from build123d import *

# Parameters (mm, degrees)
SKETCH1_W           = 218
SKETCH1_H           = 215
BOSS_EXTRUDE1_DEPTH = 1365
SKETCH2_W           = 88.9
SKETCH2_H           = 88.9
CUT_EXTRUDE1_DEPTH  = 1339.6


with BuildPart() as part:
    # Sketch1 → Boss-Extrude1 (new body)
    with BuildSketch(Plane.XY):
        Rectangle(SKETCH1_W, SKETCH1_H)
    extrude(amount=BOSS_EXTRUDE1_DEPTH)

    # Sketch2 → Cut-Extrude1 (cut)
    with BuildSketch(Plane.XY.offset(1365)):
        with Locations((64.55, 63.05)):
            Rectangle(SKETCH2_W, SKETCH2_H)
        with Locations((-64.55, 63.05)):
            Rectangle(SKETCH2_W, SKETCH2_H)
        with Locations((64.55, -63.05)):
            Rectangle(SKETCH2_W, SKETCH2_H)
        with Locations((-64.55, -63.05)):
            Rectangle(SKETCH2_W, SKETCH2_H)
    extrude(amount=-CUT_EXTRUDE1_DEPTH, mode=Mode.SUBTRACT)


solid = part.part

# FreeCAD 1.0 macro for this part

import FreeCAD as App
import Part
import Sketcher
from FreeCAD import Vector
Q = App.Units.Quantity

doc = App.newDocument("Part")
body = doc.addObject("PartDesign::Body", "Body")

# Sketch on XY plane
sketch1 = body.newObject("Sketcher::SketchObject", "Sketch")
sketch1.AttachmentSupport = (doc.getObject("XY_Plane"), [""])
sketch1.MapMode = "FlatFace"
sketch1.addGeometry([
    Part.LineSegment(Vector(-109, 108, 0), Vector(-109, -108, 0)),
    Part.LineSegment(Vector(-109, -108, 0), Vector(109, -108, 0)),
    Part.LineSegment(Vector(109, -108, 0), Vector(109, 108, 0)),
    Part.LineSegment(Vector(109, 108, 0), Vector(-109, 108, 0)),
], False)
sketch1.addConstraint([
    Sketcher.Constraint("Coincident", 0, 2, 1, 1),
    Sketcher.Constraint("Coincident", 1, 2, 2, 1),
    Sketcher.Constraint("Coincident", 2, 2, 3, 1),
    Sketcher.Constraint("Coincident", 3, 2, 0, 1),
    Sketcher.Constraint("Vertical", 0),
    Sketcher.Constraint("Horizontal", 1),
    Sketcher.Constraint("Vertical", 2),
    Sketcher.Constraint("Horizontal", 3),
    Sketcher.Constraint("Symmetric", 0, 2, 2, 2, -1, 1),
    Sketcher.Constraint("DistanceX", 1, 1, 1, 2, Q("218 mm")),
    Sketcher.Constraint("DistanceY", 0, 2, 0, 1, Q("215 mm")),
])
pad1 = body.newObject("PartDesign::Pad", "Pad")
pad1.Profile = sketch1
pad1.Length = 1365

# Sketch on XY plane
sketch2 = body.newObject("Sketcher::SketchObject", "Sketch001")
sketch2.AttachmentSupport = (doc.getObject("XY_Plane"), [""])
sketch2.MapMode = "FlatFace"
sketch2.AttachmentOffset = App.Placement(Vector(0, 0, 1365), App.Rotation())
sketch2.addGeometry([
    Part.LineSegment(Vector(20, 108, 0), Vector(20, 19, 0)),  # 0
    Part.LineSegment(Vector(20, 19, 0), Vector(109, 19, 0)),  # 1
    Part.LineSegment(Vector(109, 19, 0), Vector(109, 108, 0)),  # 2
    Part.LineSegment(Vector(109, 108, 0), Vector(20, 108, 0)),  # 3
    Part.LineSegment(Vector(-109, 108, 0), Vector(-109, 19, 0)),  # 4
    Part.LineSegment(Vector(-109, 19, 0), Vector(-20, 19, 0)),  # 5
    Part.LineSegment(Vector(-20, 19, 0), Vector(-20, 108, 0)),  # 6
    Part.LineSegment(Vector(-20, 108, 0), Vector(-109, 108, 0)),  # 7
    Part.LineSegment(Vector(20, -19, 0), Vector(20, -108, 0)),  # 8
    Part.LineSegment(Vector(20, -108, 0), Vector(109, -108, 0)),  # 9
    Part.LineSegment(Vector(109, -108, 0), Vector(109, -19, 0)),  # 10
    Part.LineSegment(Vector(109, -19, 0), Vector(20, -19, 0)),  # 11
    Part.LineSegment(Vector(-109, -19, 0), Vector(-109, -108, 0)),  # 12
    Part.LineSegment(Vector(-109, -108, 0), Vector(-20, -108, 0)),  # 13
    Part.LineSegment(Vector(-20, -108, 0), Vector(-20, -19, 0)),  # 14
    Part.LineSegment(Vector(-20, -19, 0), Vector(-109, -19, 0)),  # 15
], False)
sketch2.addConstraint([
    Sketcher.Constraint("Coincident", 0, 2, 1, 1),
    Sketcher.Constraint("Coincident", 1, 2, 2, 1),
    Sketcher.Constraint("Coincident", 2, 2, 3, 1),
    Sketcher.Constraint("Coincident", 3, 2, 0, 1),
    Sketcher.Constraint("Coincident", 4, 2, 5, 1),
    Sketcher.Constraint("Coincident", 5, 2, 6, 1),
    Sketcher.Constraint("Coincident", 6, 2, 7, 1),
    Sketcher.Constraint("Coincident", 7, 2, 4, 1),
    Sketcher.Constraint("Coincident", 8, 2, 9, 1),
    Sketcher.Constraint("Coincident", 9, 2, 10, 1),
    Sketcher.Constraint("Coincident", 10, 2, 11, 1),
    Sketcher.Constraint("Coincident", 11, 2, 8, 1),
    Sketcher.Constraint("Coincident", 12, 2, 13, 1),
    Sketcher.Constraint("Coincident", 13, 2, 14, 1),
    Sketcher.Constraint("Coincident", 14, 2, 15, 1),
    Sketcher.Constraint("Coincident", 15, 2, 12, 1),
    Sketcher.Constraint("Vertical", 0),
    Sketcher.Constraint("Horizontal", 1),
    Sketcher.Constraint("Vertical", 2),
    Sketcher.Constraint("Horizontal", 3),
    Sketcher.Constraint("Vertical", 4),
    Sketcher.Constraint("Horizontal", 5),
    Sketcher.Constraint("Vertical", 6),
    Sketcher.Constraint("Horizontal", 7),
    Sketcher.Constraint("Vertical", 8),
    Sketcher.Constraint("Horizontal", 9),
    Sketcher.Constraint("Vertical", 10),
    Sketcher.Constraint("Horizontal", 11),
    Sketcher.Constraint("Vertical", 12),
    Sketcher.Constraint("Horizontal", 13),
    Sketcher.Constraint("Vertical", 14),
    Sketcher.Constraint("Horizontal", 15),
    Sketcher.Constraint("Symmetric", 6, 2, 8, 2, -1, 1),
    Sketcher.Constraint("Symmetric", 4, 2, 10, 2, -1, 1),
    Sketcher.Constraint("Symmetric", 2, 2, 12, 2, -1, 1),
    Sketcher.Constraint("Symmetric", 0, 2, 14, 2, -1, 1),
    Sketcher.Constraint("Symmetric", 1, 2, 4, 2, -2),
    Sketcher.Constraint("Symmetric", 3, 2, 6, 2, -2),
    Sketcher.Constraint("Equal", 15, 0),
    Sketcher.Constraint("DistanceX", 1, 1, 1, 2, Q("88.9 mm")),
    Sketcher.Constraint("DistanceX", -1, 1, 1, 2, Q("109 mm")),
    Sketcher.Constraint("DistanceY", 8, 2, 3, 2, Q("215 mm")),
])
pocket1 = body.newObject("PartDesign::Pocket", "Pocket")
pocket1.Profile = sketch2
pocket1.Length = 1339.6

doc.recompute()
